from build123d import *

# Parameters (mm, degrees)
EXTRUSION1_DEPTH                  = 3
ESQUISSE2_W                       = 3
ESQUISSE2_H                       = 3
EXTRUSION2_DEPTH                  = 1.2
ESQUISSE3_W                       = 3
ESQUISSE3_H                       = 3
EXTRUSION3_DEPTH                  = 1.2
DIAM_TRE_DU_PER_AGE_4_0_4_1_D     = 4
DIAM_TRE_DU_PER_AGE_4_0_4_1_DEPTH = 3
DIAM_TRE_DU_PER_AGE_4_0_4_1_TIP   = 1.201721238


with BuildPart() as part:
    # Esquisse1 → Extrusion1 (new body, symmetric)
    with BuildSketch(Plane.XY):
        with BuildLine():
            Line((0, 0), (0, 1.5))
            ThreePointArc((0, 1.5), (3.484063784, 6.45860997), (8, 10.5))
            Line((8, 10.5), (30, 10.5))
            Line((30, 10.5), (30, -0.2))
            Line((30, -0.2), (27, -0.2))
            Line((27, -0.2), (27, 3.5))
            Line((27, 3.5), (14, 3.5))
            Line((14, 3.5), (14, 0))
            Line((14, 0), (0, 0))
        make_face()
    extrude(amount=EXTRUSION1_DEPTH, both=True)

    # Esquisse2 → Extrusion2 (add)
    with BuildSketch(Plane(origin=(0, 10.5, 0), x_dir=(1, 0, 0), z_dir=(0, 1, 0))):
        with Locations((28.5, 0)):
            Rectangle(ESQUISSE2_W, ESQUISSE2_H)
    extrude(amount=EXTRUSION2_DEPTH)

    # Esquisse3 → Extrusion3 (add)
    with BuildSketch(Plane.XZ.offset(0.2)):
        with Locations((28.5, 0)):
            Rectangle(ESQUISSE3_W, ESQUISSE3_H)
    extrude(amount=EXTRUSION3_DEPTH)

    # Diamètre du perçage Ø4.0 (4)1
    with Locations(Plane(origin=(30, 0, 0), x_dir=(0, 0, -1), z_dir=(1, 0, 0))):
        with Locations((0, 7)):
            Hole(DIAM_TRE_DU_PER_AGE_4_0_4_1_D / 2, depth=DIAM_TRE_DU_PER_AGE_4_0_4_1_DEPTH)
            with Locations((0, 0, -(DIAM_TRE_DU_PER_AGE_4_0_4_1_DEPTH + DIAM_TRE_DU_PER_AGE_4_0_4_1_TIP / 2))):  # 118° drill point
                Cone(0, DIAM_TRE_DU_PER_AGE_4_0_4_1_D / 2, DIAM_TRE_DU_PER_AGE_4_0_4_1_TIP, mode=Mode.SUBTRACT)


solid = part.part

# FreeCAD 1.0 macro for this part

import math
import FreeCAD as App
import Part
import Sketcher


def add_polygon(sketch, points):
    """Adds a closed chain of lines whose ends are joined by coincident constraints."""
    first, n = sketch.GeometryCount, len(points)
    for a, b in zip(points, points[1:] + points[:1]):
        sketch.addGeometry(Part.LineSegment(App.Vector(*a, 0), App.Vector(*b, 0)), False)
    for i in range(n):
        sketch.addConstraint(Sketcher.Constraint("Coincident", first + i, 2, first + (i + 1) % n, 1))

doc = App.newDocument("Part")
params = doc.addObject("Spreadsheet::Sheet", "Params")
for row, (alias, value) in enumerate([
    ("sketch1_width", "14 mm"),
    ("sketch1_width2", "13 mm"),
    ("sketch1_width3", "3 mm"),
    ("sketch1_width4", "22 mm"),
    ("sketch1_height", "1.5 mm"),
    ("pad1_length", "6 mm"),
    ("sketch2_width", "3 mm"),
    ("pad2_length", "1.2 mm"),
    ("sketch3_width", "3 mm"),
    ("pad3_length", "1.2 mm"),
    ("sketch4_diameter", "4 mm"),
    ("hole_diameter", "4 mm"),
    ("hole_depth", "3 mm"),
], start=1):
    params.set(f"A{row}", alias)
    params.set(f"B{row}", "=" + value)
    params.setAlias(f"B{row}", alias)

body = doc.addObject("PartDesign::Body", "Body")

sketch1 = body.newObject("Sketcher::SketchObject", "Sketch")
sketch1.AttachmentSupport = (doc.getObject("XY_Plane"), [""])
sketch1.MapMode = "FlatFace"
sketch1.addGeometry(Part.LineSegment(App.Vector(0, 1.5, 0), App.Vector(0, 0, 0)), False)
sketch1.addGeometry(Part.LineSegment(App.Vector(0, 0, 0), App.Vector(14, 0, 0)), False)
sketch1.addGeometry(Part.LineSegment(App.Vector(14, 0, 0), App.Vector(14, 3.5, 0)), False)
sketch1.addGeometry(Part.LineSegment(App.Vector(14, 3.5, 0), App.Vector(27, 3.5, 0)), False)
sketch1.addGeometry(Part.LineSegment(App.Vector(27, 3.5, 0), App.Vector(27, -0.2, 0)), False)
sketch1.addGeometry(Part.LineSegment(App.Vector(27, -0.2, 0), App.Vector(30, -0.2, 0)), False)
sketch1.addGeometry(Part.LineSegment(App.Vector(30, -0.2, 0), App.Vector(30, 10.5, 0)), False)
sketch1.addGeometry(Part.LineSegment(App.Vector(30, 10.5, 0), App.Vector(8, 10.5, 0)), False)
sketch1.addGeometry(Part.ArcOfCircle(Part.Circle(App.Vector(23.4, -11.2, 0), App.Vector(0, 0, 1), 26.6), math.radians(125), math.radians(151)), False)
sketch1.addConstraint(Sketcher.Constraint("Coincident", 0, 2, 1, 1))
sketch1.addConstraint(Sketcher.Constraint("Coincident", 1, 2, 2, 1))
sketch1.addConstraint(Sketcher.Constraint("Coincident", 2, 2, 3, 1))
sketch1.addConstraint(Sketcher.Constraint("Coincident", 3, 2, 4, 1))
sketch1.addConstraint(Sketcher.Constraint("Coincident", 4, 2, 5, 1))
sketch1.addConstraint(Sketcher.Constraint("Coincident", 5, 2, 6, 1))
sketch1.addConstraint(Sketcher.Constraint("Coincident", 6, 2, 7, 1))
sketch1.addConstraint(Sketcher.Constraint("Coincident", 7, 2, 8, 1))
sketch1.addConstraint(Sketcher.Constraint("Coincident", 8, 2, 0, 1))
sketch1.addConstraint(Sketcher.Constraint("Vertical", 0))
sketch1.addConstraint(Sketcher.Constraint("Horizontal", 1))
sketch1.addConstraint(Sketcher.Constraint("Vertical", 2))
sketch1.addConstraint(Sketcher.Constraint("Horizontal", 3))
sketch1.addConstraint(Sketcher.Constraint("Vertical", 4))
sketch1.addConstraint(Sketcher.Constraint("Horizontal", 5))
sketch1.addConstraint(Sketcher.Constraint("Vertical", 6))
sketch1.addConstraint(Sketcher.Constraint("Horizontal", 7))
sketch1.addConstraint(Sketcher.Constraint("Coincident", 0, 2, -1, 1))
sketch1.addConstraint(Sketcher.Constraint("DistanceX", 1, 1, 1, 2, 14.0))
sketch1.addConstraint(Sketcher.Constraint("DistanceX", 3, 1, 3, 2, 13.0))
sketch1.addConstraint(Sketcher.Constraint("DistanceX", 5, 1, 5, 2, 3.0))
sketch1.addConstraint(Sketcher.Constraint("DistanceX", 7, 2, 7, 1, 22.0))
sketch1.addConstraint(Sketcher.Constraint("DistanceY", 0, 2, 0, 1, 1.5))
sketch1.addConstraint(Sketcher.Constraint("DistanceY", 2, 1, 2, 2, 3.5))
sketch1.addConstraint(Sketcher.Constraint("DistanceY", 4, 2, 4, 1, 3.7))
sketch1.addConstraint(Sketcher.Constraint("DistanceY", 6, 1, 6, 2, 10.7))
sketch1.addConstraint(Sketcher.Constraint("Radius", 8, 26.601872))
sketch1.setExpression("Constraints[18]", "Params.sketch1_width")
sketch1.setExpression("Constraints[19]", "Params.sketch1_width2")
sketch1.setExpression("Constraints[20]", "Params.sketch1_width3")
sketch1.setExpression("Constraints[21]", "Params.sketch1_width4")
sketch1.setExpression("Constraints[22]", "Params.sketch1_height")
pad1 = body.newObject("PartDesign::Pad", "Pad")
pad1.Profile = sketch1
pad1.setExpression("Length", "Params.pad1_length")
pad1.Midplane = True

sketch2 = body.newObject("Sketcher::SketchObject", "Sketch001")
sketch2.AttachmentSupport = (doc.getObject("XZ_Plane"), [""])
sketch2.MapMode = "FlatFace"
sketch2.AttachmentOffset = App.Placement(App.Vector(0, 0, -10.5), App.Rotation())
add_polygon(sketch2, [(27, -1.5), (27, 1.5), (30, 1.5), (30, -1.5)])
sketch2.addConstraint(Sketcher.Constraint("Vertical", 0))
sketch2.addConstraint(Sketcher.Constraint("Horizontal", 1))
sketch2.addConstraint(Sketcher.Constraint("Vertical", 2))
sketch2.addConstraint(Sketcher.Constraint("Horizontal", 3))
sketch2.addConstraint(Sketcher.Constraint("Equal", 3, 0))
sketch2.addConstraint(Sketcher.Constraint("DistanceX", 1, 1, 1, 2, 3.0))
sketch2.addConstraint(Sketcher.Constraint("DistanceX", -1, 1, 0, 2, 27.0))
sketch2.addConstraint(Sketcher.Constraint("DistanceY", -1, 1, 0, 2, 1.5))
sketch2.setExpression("Constraints[9]", "Params.sketch2_width")
pad2 = body.newObject("PartDesign::Pad", "Pad001")
pad2.Profile = sketch2
pad2.setExpression("Length", "Params.pad2_length")
pad2.Reversed = True

sketch3 = body.newObject("Sketcher::SketchObject", "Sketch002")
sketch3.AttachmentSupport = (doc.getObject("XZ_Plane"), [""])
sketch3.MapMode = "FlatFace"
sketch3.AttachmentOffset = App.Placement(App.Vector(0, 0, 0.2), App.Rotation())
add_polygon(sketch3, [(27, 1.5), (27, -1.5), (30, -1.5), (30, 1.5)])
sketch3.addConstraint(Sketcher.Constraint("Vertical", 0))
sketch3.addConstraint(Sketcher.Constraint("Horizontal", 1))
sketch3.addConstraint(Sketcher.Constraint("Vertical", 2))
sketch3.addConstraint(Sketcher.Constraint("Horizontal", 3))
sketch3.addConstraint(Sketcher.Constraint("Equal", 3, 0))
sketch3.addConstraint(Sketcher.Constraint("DistanceX", 1, 1, 1, 2, 3.0))
sketch3.addConstraint(Sketcher.Constraint("DistanceX", -1, 1, 0, 2, 27.0))
sketch3.addConstraint(Sketcher.Constraint("DistanceY", 0, 2, -1, 1, 1.5))
sketch3.setExpression("Constraints[9]", "Params.sketch3_width")
pad3 = body.newObject("PartDesign::Pad", "Pad002")
pad3.Profile = sketch3
pad3.setExpression("Length", "Params.pad3_length")

sketch4 = body.newObject("Sketcher::SketchObject", "Sketch003")
sketch4.AttachmentSupport = (doc.getObject("YZ_Plane"), [""])
sketch4.MapMode = "FlatFace"
sketch4.AttachmentOffset = App.Placement(App.Vector(0, 0, 30), App.Rotation())
sketch4.addGeometry(Part.Circle(App.Vector(7, 0, 0), App.Vector(0, 0, 1), 2), False)
sketch4.addConstraint(Sketcher.Constraint("PointOnObject", 0, 3, -1))
sketch4.addConstraint(Sketcher.Constraint("Diameter", 0, 4.0))
sketch4.addConstraint(Sketcher.Constraint("DistanceX", -1, 1, 0, 3, 7.0))
sketch4.setExpression("Constraints[1]", "Params.sketch4_diameter")
doc.recompute()
hole = body.newObject("PartDesign::Hole", "Hole")
hole.Profile = sketch4
hole.ThreadType = "None"
hole.setExpression("Diameter", "Params.hole_diameter")
hole.DepthType = "Dimension"
hole.setExpression("Depth", "Params.hole_depth")
hole.DrillPoint = "Angled"
hole.DrillPointAngle = 118

doc.recompute()
